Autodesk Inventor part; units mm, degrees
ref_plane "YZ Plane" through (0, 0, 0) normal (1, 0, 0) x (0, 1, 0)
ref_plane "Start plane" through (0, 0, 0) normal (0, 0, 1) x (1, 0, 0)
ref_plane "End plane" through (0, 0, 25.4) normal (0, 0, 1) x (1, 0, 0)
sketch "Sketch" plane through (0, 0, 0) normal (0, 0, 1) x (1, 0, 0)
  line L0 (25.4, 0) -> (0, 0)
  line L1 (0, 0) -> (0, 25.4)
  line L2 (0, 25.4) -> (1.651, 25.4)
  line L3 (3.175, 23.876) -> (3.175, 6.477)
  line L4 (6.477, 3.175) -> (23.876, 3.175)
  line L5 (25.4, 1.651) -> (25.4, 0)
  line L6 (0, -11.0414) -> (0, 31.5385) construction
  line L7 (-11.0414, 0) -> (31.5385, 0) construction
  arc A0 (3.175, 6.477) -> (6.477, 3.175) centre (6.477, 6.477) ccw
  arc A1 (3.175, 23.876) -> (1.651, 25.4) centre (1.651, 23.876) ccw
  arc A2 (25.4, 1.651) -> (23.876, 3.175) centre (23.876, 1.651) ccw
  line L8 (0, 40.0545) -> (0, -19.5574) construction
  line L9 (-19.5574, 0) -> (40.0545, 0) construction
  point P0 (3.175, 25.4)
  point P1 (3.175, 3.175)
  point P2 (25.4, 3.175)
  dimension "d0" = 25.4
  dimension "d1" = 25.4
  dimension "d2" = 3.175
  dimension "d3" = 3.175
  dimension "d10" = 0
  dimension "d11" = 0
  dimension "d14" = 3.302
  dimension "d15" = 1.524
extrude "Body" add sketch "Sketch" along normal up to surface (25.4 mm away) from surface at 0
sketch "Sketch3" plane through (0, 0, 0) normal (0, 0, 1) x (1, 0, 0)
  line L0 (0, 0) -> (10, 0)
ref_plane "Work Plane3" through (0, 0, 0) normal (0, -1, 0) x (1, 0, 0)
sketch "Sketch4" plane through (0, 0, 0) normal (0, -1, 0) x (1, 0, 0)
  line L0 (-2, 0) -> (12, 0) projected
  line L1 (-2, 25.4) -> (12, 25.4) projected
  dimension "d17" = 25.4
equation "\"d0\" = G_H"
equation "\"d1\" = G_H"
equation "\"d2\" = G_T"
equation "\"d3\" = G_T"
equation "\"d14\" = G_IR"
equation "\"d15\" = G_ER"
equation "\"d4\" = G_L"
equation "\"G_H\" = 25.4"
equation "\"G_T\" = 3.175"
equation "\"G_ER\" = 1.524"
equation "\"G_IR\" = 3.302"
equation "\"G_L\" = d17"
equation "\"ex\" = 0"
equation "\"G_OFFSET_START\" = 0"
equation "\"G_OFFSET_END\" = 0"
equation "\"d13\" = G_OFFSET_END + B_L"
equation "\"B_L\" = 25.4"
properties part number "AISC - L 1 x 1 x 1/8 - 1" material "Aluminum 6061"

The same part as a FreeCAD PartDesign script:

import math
import FreeCAD as App
import Part
import Sketcher
Q = App.Units.Quantity

doc = App.newDocument("Part")
body = doc.addObject("PartDesign::Body", "Body")

# Sketch on XY plane
sketch1 = body.newObject("Sketcher::SketchObject", "Sketch")
sketch1.AttachmentSupport = (doc.getObject("XY_Plane"), [""])
sketch1.MapMode = "FlatFace"
sketch1.addGeometry([
    Part.LineSegment(App.Vector(0, 0, 0), App.Vector(25.4, 0, 0)),  # 0
    Part.LineSegment(App.Vector(25.4, 0, 0), App.Vector(25.4, 1.7, 0)),  # 1
    Part.ArcOfCircle(Part.Circle(App.Vector(23.9, 1.7, 0), App.Vector(0, 0, 1), 1.5), math.radians(0), math.radians(90)),  # 2
    Part.LineSegment(App.Vector(23.9, 3.2, 0), App.Vector(6.5, 3.2, 0)),  # 3
    Part.ArcOfCircle(Part.Circle(App.Vector(6.5, 6.5, 0), App.Vector(0, 0, 1), 3.3), math.radians(180), math.radians(270)),  # 4
    Part.LineSegment(App.Vector(3.2, 6.5, 0), App.Vector(3.2, 23.9, 0)),  # 5
    Part.ArcOfCircle(Part.Circle(App.Vector(1.7, 23.9, 0), App.Vector(0, 0, 1), 1.5), math.radians(0), math.radians(90)),  # 6
    Part.LineSegment(App.Vector(1.7, 25.4, 0), App.Vector(0, 25.4, 0)),  # 7
    Part.LineSegment(App.Vector(0, 25.4, 0), App.Vector(0, 0, 0)),  # 8
], False)
sketch1.addConstraint([
    Sketcher.Constraint("Coincident", 0, 2, 1, 1),
    Sketcher.Constraint("Tangent", 1, 2, 2, 1),
    Sketcher.Constraint("Tangent", 2, 2, 3, 1),
    Sketcher.Constraint("Tangent", 3, 2, 4, 2),
    Sketcher.Constraint("Tangent", 4, 1, 5, 1),
    Sketcher.Constraint("Tangent", 5, 2, 6, 1),
    Sketcher.Constraint("Tangent", 6, 2, 7, 1),
    Sketcher.Constraint("Coincident", 7, 2, 8, 1),
    Sketcher.Constraint("Coincident", 8, 2, 0, 1),
    Sketcher.Constraint("Horizontal", 0),
    Sketcher.Constraint("Vertical", 1),
    Sketcher.Constraint("Horizontal", 3),
    Sketcher.Constraint("Vertical", 5),
    Sketcher.Constraint("Horizontal", 7),
    Sketcher.Constraint("Vertical", 8),
    Sketcher.Constraint("Coincident", 8, 2, -1, 1),
    Sketcher.Constraint("Equal", 2, 6),
    Sketcher.Constraint("Equal", 7, 1),
    Sketcher.Constraint("Equal", 3, 5),
    Sketcher.Constraint("DistanceX", 0, 1, 0, 2, Q("1 in")),
    Sketcher.Constraint("Radius", 2, Q("0.06 in")),
    Sketcher.Constraint("Radius", 4, Q("0.13 in")),
    Sketcher.Constraint("DistanceY", -1, 1, 2, 2, Q("0.125 in")),
])
pad1 = body.newObject("PartDesign::Pad", "Pad")
pad1.Profile = sketch1
pad1.Length = Q("1 in")

doc.recompute()
